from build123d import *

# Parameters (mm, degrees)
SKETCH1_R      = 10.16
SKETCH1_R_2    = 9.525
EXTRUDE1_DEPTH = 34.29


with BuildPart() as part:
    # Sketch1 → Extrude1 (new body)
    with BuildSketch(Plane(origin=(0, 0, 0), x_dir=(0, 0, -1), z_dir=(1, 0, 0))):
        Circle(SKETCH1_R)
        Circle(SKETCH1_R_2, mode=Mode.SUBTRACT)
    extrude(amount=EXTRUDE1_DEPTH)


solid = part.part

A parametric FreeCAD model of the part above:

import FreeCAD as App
import Part
import Sketcher
from FreeCAD import Vector
Q = App.Units.Quantity

doc = App.newDocument("Part")
body = doc.addObject("PartDesign::Body", "Body")

sketch1 = doc.addObject("Sketcher::SketchObject", "Sketch")
body.addObject(sketch1)
sketch1.AttachmentSupport = (doc.YZ_Plane, [""])
sketch1.MapMode = "FlatFace"
sketch1.addGeometry([
    Part.Circle(Vector(0, 0, 0), Vector(0, 0, 1), 10),
    Part.Circle(Vector(0, 0, 0), Vector(0, 0, 1), 10),
], False)
sketch1.addConstraint([
    Sketcher.Constraint("Coincident", 0, 3, -1, 1),
    Sketcher.Constraint("Coincident", 1, 3, -1, 1),
    Sketcher.Constraint("Diameter", 0, Q("0.8 in")),
    Sketcher.Constraint("Diameter", 1, Q("0.75 in")),
])
pad1 = doc.addObject("PartDesign::Pad", "Pad")
body.addObject(pad1)
pad1.Profile = sketch1
pad1.Length = Q("1.35 in")

doc.recompute()
